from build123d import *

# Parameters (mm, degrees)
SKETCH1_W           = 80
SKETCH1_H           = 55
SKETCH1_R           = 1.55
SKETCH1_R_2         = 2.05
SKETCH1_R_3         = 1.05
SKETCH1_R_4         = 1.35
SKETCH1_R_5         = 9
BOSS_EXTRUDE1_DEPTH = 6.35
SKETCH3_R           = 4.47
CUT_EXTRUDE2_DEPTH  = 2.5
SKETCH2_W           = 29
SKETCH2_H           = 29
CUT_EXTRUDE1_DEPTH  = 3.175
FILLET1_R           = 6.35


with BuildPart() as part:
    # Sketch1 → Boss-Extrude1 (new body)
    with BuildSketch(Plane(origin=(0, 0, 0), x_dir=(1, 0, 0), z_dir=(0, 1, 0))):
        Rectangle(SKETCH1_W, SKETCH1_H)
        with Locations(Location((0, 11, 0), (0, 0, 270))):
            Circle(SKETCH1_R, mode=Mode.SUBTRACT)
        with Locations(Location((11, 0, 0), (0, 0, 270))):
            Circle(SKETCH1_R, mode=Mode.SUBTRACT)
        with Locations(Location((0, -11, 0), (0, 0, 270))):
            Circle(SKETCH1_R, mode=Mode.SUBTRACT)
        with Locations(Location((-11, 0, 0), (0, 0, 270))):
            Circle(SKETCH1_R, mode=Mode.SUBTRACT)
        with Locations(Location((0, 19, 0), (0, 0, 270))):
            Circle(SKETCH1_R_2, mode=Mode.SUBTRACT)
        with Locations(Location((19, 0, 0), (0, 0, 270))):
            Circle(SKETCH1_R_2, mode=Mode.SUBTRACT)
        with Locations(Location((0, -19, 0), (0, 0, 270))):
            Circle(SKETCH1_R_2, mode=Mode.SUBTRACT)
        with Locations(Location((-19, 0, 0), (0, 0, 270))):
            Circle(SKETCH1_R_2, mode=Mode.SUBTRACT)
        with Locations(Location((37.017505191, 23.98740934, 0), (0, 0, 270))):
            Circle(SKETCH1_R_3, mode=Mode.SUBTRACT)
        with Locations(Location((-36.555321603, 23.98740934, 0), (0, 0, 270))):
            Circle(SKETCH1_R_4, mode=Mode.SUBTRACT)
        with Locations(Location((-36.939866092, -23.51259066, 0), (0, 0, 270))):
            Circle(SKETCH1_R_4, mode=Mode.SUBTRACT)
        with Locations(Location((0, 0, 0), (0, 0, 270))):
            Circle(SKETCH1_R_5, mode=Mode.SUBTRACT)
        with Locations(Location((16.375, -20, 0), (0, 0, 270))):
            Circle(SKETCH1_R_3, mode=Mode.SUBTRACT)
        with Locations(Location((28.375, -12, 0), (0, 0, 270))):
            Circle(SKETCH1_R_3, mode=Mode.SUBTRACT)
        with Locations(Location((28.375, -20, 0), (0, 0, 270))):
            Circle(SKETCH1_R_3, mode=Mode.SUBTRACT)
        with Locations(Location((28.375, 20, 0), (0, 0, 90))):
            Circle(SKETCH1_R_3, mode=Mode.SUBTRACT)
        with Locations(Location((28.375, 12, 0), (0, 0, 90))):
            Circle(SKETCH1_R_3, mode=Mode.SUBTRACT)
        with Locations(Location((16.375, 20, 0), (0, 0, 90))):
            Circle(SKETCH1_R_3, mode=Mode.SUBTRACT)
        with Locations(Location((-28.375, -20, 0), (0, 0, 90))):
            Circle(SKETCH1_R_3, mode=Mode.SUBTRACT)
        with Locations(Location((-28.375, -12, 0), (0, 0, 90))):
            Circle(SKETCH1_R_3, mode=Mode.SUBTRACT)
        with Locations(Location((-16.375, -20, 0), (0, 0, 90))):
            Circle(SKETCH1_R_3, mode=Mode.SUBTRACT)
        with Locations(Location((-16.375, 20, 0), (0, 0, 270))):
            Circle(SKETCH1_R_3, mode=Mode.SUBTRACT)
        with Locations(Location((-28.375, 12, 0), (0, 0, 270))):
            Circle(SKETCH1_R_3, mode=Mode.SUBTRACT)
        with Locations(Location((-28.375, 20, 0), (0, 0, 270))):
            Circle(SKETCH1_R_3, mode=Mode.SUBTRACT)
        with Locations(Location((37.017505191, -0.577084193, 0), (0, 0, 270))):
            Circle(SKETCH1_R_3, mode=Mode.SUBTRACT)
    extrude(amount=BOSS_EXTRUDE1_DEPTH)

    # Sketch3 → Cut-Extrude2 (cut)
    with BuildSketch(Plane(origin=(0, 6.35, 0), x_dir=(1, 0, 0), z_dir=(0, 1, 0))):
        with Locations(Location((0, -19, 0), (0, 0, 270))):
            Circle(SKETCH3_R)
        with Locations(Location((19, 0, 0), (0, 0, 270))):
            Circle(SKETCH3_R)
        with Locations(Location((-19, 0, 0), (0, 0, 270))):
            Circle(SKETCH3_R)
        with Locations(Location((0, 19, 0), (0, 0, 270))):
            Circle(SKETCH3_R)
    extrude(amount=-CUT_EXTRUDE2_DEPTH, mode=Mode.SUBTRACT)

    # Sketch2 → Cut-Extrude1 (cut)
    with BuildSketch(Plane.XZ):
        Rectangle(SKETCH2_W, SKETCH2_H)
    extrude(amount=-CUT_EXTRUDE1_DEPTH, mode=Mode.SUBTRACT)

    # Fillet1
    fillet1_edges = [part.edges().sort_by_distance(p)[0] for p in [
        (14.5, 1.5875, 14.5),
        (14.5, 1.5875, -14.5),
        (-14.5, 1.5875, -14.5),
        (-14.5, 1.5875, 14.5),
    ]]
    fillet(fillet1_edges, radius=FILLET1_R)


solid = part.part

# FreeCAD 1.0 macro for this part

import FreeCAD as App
import Part
import Sketcher


def edges_at(feature, points):
    """Names of the edges that pass closest to the given points."""
    edges = feature.Shape.Edges
    near = lambda p: min(range(len(edges)), key=lambda i: edges[i].distToShape(Part.Vertex(*p))[0])
    return sorted({f"Edge{near(p) + 1}" for p in points})

doc = App.newDocument("Part")
body = doc.addObject("PartDesign::Body", "Body")

sketch1 = doc.addObject("Sketcher::SketchObject", "Sketch")
body.addObject(sketch1)
sketch1.AttachmentSupport = (doc.XZ_Plane, [""])
sketch1.MapMode = "FlatFace"
sketch1.addGeometry([
    Part.LineSegment(App.Vector(-40, -27.5, 0), App.Vector(-40, 27.5, 0)),
    Part.LineSegment(App.Vector(-40, 27.5, 0), App.Vector(40, 27.5, 0)),
    Part.LineSegment(App.Vector(40, 27.5, 0), App.Vector(40, -27.5, 0)),
    Part.LineSegment(App.Vector(40, -27.5, 0), App.Vector(-40, -27.5, 0)),
    Part.Circle(App.Vector(-36.9, 23.5, 0), App.Vector(0, 0, 1), 1.4),
    Part.Circle(App.Vector(-28.4, 20, 0), App.Vector(0, 0, 1), 1.1),
    Part.Circle(App.Vector(-16.4, 20, 0), App.Vector(0, 0, 1), 1.1),
    Part.Circle(App.Vector(-28.4, 12, 0), App.Vector(0, 0, 1), 1.1),
    Part.Circle(App.Vector(-19, 0, 0), App.Vector(0, 0, 1), 2),
    Part.Circle(App.Vector(-11, 0, 0), App.Vector(0, 0, 1), 1.6),
    Part.Circle(App.Vector(0, 19, 0), App.Vector(0, 0, 1), 2),
    Part.Circle(App.Vector(16.4, 20, 0), App.Vector(0, 0, 1), 1.1),
    Part.Circle(App.Vector(28.4, 20, 0), App.Vector(0, 0, 1), 1.1),
    Part.Circle(App.Vector(0, 11, 0), App.Vector(0, 0, 1), 1.6),
    Part.Circle(App.Vector(0, 0, 0), App.Vector(0, 0, 1), 9),
    Part.Circle(App.Vector(11, 0, 0), App.Vector(0, 0, 1), 1.6),
    Part.Circle(App.Vector(28.4, 12, 0), App.Vector(0, 0, 1), 1.1),
    Part.Circle(App.Vector(19, 0, 0), App.Vector(0, 0, 1), 2),
    Part.Circle(App.Vector(37, 0.6, 0), App.Vector(0, 0, 1), 1.1),
    Part.Circle(App.Vector(-28.4, -12, 0), App.Vector(0, 0, 1), 1.1),
    Part.Circle(App.Vector(-36.6, -24, 0), App.Vector(0, 0, 1), 1.4),
    Part.Circle(App.Vector(-28.4, -20, 0), App.Vector(0, 0, 1), 1.1),
    Part.Circle(App.Vector(-16.4, -20, 0), App.Vector(0, 0, 1), 1.1),
    Part.Circle(App.Vector(0, -11, 0), App.Vector(0, 0, 1), 1.6),
    Part.Circle(App.Vector(28.4, -12, 0), App.Vector(0, 0, 1), 1.1),
    Part.Circle(App.Vector(0, -19, 0), App.Vector(0, 0, 1), 2),
    Part.Circle(App.Vector(16.4, -20, 0), App.Vector(0, 0, 1), 1.1),
    Part.Circle(App.Vector(28.4, -20, 0), App.Vector(0, 0, 1), 1.1),
    Part.Circle(App.Vector(37, -24, 0), App.Vector(0, 0, 1), 1.1),
], False)
sketch1.addConstraint([
    Sketcher.Constraint("Coincident", 0, 2, 1, 1),
    Sketcher.Constraint("Coincident", 1, 2, 2, 1),
    Sketcher.Constraint("Coincident", 2, 2, 3, 1),
    Sketcher.Constraint("Coincident", 3, 2, 0, 1),
    Sketcher.Constraint("Vertical", 0),
    Sketcher.Constraint("Horizontal", 1),
    Sketcher.Constraint("Vertical", 2),
    Sketcher.Constraint("Horizontal", 3),
    Sketcher.Constraint("Coincident", 14, 3, -1, 1),
    Sketcher.Constraint("Equal", 5, 6),
    Sketcher.Constraint("Equal", 6, 7),
    Sketcher.Constraint("Equal", 8, 10),
    Sketcher.Constraint("Equal", 7, 11),
    Sketcher.Constraint("Equal", 11, 12),
    Sketcher.Constraint("Equal", 9, 13),
    Sketcher.Constraint("Equal", 13, 15),
    Sketcher.Constraint("Equal", 12, 16),
    Sketcher.Constraint("Equal", 10, 17),
    Sketcher.Constraint("Equal", 16, 18),
    Sketcher.Constraint("Equal", 18, 19),
    Sketcher.Constraint("Equal", 4, 20),
    Sketcher.Constraint("Equal", 19, 21),
    Sketcher.Constraint("Equal", 21, 22),
    Sketcher.Constraint("Equal", 15, 23),
    Sketcher.Constraint("Equal", 22, 24),
    Sketcher.Constraint("Equal", 17, 25),
    Sketcher.Constraint("Equal", 24, 26),
    Sketcher.Constraint("Equal", 26, 27),
    Sketcher.Constraint("Equal", 27, 28),
    Sketcher.Constraint("Symmetric", 9, 3, 15, 3, -1, 1),
    Sketcher.Constraint("Symmetric", 8, 3, 17, 3, -1, 1),
    Sketcher.Constraint("Symmetric", 16, 3, 19, 3, -1, 1),
    Sketcher.Constraint("Symmetric", 12, 3, 21, 3, -1, 1),
    Sketcher.Constraint("Symmetric", 11, 3, 22, 3, -1, 1),
    Sketcher.Constraint("Symmetric", 13, 3, 23, 3, -1, 1),
    Sketcher.Constraint("Symmetric", 7, 3, 24, 3, -1, 1),
    Sketcher.Constraint("Symmetric", 10, 3, 25, 3, -1, 1),
    Sketcher.Constraint("Symmetric", 6, 3, 26, 3, -1, 1),
    Sketcher.Constraint("Symmetric", 5, 3, 27, 3, -1, 1),
    Sketcher.Constraint("Symmetric", 0, 2, 2, 2, -1, 1),
    Sketcher.Constraint("Symmetric", 6, 3, 11, 3, -2),
    Sketcher.Constraint("Symmetric", 5, 3, 12, 3, -2),
    Sketcher.Constraint("Symmetric", 7, 3, 16, 3, -2),
    Sketcher.Constraint("PointOnObject", 8, 3, -1),
    Sketcher.Constraint("PointOnObject", 9, 3, -1),
    Sketcher.Constraint("PointOnObject", 10, 3, -2),
    Sketcher.Constraint("PointOnObject", 13, 3, -2),
    Sketcher.Constraint("Horizontal", 5, 3, 6, 3),
    Sketcher.Constraint("Horizontal", 20, 3, 28, 3),
    Sketcher.Constraint("Vertical", 5, 3, 7, 3),
    Sketcher.Constraint("Vertical", 18, 3, 28, 3),
    Sketcher.Constraint("Diameter", 14, 18.0),
    Sketcher.Constraint("Diameter", 4, 2.7),
    Sketcher.Constraint("Diameter", 5, 2.1),
    Sketcher.Constraint("Diameter", 8, 4.1),
    Sketcher.Constraint("Diameter", 9, 3.1),
    Sketcher.Constraint("DistanceX", 1, 1, 1, 2, 80.0),
    Sketcher.Constraint("DistanceY", 0, 1, 0, 2, 55.0),
    Sketcher.Constraint("DistanceY", -1, 1, 5, 3, 20.0),
    Sketcher.Constraint("DistanceY", -1, 1, 7, 3, 12.0),
    Sketcher.Constraint("DistanceX", 8, 3, -1, 1, 19.0),
    Sketcher.Constraint("DistanceX", 9, 3, -1, 1, 11.0),
    Sketcher.Constraint("DistanceY", -1, 1, 10, 3, 19.0),
    Sketcher.Constraint("DistanceY", -1, 1, 13, 3, 11.0),
    Sketcher.Constraint("DistanceX", 5, 3, 6, 3, 12.0),
    Sketcher.Constraint("DistanceX", 6, 3, 11, 3, 32.75),
    Sketcher.Constraint("DistanceY", -1, 1, 4, 3, 23.512591),
    Sketcher.Constraint("DistanceX", 20, 3, -1, 1, 36.555322),
    Sketcher.Constraint("DistanceY", 20, 3, -1, 1, 23.987409),
    Sketcher.Constraint("DistanceX", 4, 3, -1, 1, 36.939866),
    Sketcher.Constraint("DistanceX", -1, 1, 18, 3, 37.017505),
    Sketcher.Constraint("DistanceY", -1, 1, 18, 3, 0.577084),
])
pad1 = doc.addObject("PartDesign::Pad", "Pad")
body.addObject(pad1)
pad1.Profile = sketch1
pad1.Length = 6.35
pad1.Reversed = True

sketch2 = doc.addObject("Sketcher::SketchObject", "Sketch001")
body.addObject(sketch2)
sketch2.AttachmentSupport = (doc.XZ_Plane, [""])
sketch2.MapMode = "FlatFace"
sketch2.AttachmentOffset = App.Placement(App.Vector(0, 0, -6.35), App.Rotation())
sketch2.addGeometry([
    Part.Circle(App.Vector(0, 19, 0), App.Vector(0, 0, 1), 4.5),
    Part.Circle(App.Vector(19, 0, 0), App.Vector(0, 0, 1), 4.5),
    Part.Circle(App.Vector(-19, 0, 0), App.Vector(0, 0, 1), 4.5),
    Part.Circle(App.Vector(0, -19, 0), App.Vector(0, 0, 1), 4.5),
], False)
sketch2.addConstraint([
    Sketcher.Constraint("Equal", 0, 1),
    Sketcher.Constraint("Equal", 1, 2),
    Sketcher.Constraint("Equal", 2, 3),
    Sketcher.Constraint("Symmetric", 1, 3, 2, 3, -1, 1),
    Sketcher.Constraint("Symmetric", 0, 3, 3, 3, -1, 1),
    Sketcher.Constraint("PointOnObject", 0, 3, -2),
    Sketcher.Constraint("PointOnObject", 1, 3, -1),
    Sketcher.Constraint("Diameter", 0, 8.94),
    Sketcher.Constraint("DistanceY", -1, 1, 0, 3, 19.0),
    Sketcher.Constraint("DistanceX", -1, 1, 1, 3, 19.0),
])
pocket1 = doc.addObject("PartDesign::Pocket", "Pocket")
body.addObject(pocket1)
pocket1.Profile = sketch2
pocket1.Length = 2.5
pocket1.Reversed = True

sketch3 = doc.addObject("Sketcher::SketchObject", "Sketch002")
body.addObject(sketch3)
sketch3.AttachmentSupport = (doc.XZ_Plane, [""])
sketch3.MapMode = "FlatFace"
sketch3.addGeometry([
    Part.LineSegment(App.Vector(-14, 14, 0), App.Vector(-14, -14, 0)),
    Part.LineSegment(App.Vector(-14, -14, 0), App.Vector(14, -14, 0)),
    Part.LineSegment(App.Vector(14, -14, 0), App.Vector(14, 14, 0)),
    Part.LineSegment(App.Vector(14, 14, 0), App.Vector(-14, 14, 0)),
], False)
sketch3.addConstraint([
    Sketcher.Constraint("Coincident", 0, 2, 1, 1),
    Sketcher.Constraint("Coincident", 1, 2, 2, 1),
    Sketcher.Constraint("Coincident", 2, 2, 3, 1),
    Sketcher.Constraint("Coincident", 3, 2, 0, 1),
    Sketcher.Constraint("Vertical", 0),
    Sketcher.Constraint("Horizontal", 1),
    Sketcher.Constraint("Vertical", 2),
    Sketcher.Constraint("Horizontal", 3),
    Sketcher.Constraint("Symmetric", 0, 2, 2, 2, -1, 1),
    Sketcher.Constraint("Equal", 3, 0),
    Sketcher.Constraint("DistanceX", 1, 1, 1, 2, 29.0),
])
pocket2 = doc.addObject("PartDesign::Pocket", "Pocket001")
body.addObject(pocket2)
pocket2.Profile = sketch3
pocket2.Length = 3.175
doc.recompute()

fillet = doc.addObject("PartDesign::Fillet", "Fillet")
body.addObject(fillet)
fillet.Base = (pocket2, edges_at(pocket2, [
    (14.5, 1.587, 14.5),
    (14.5, 1.587, -14.5),
    (-14.5, 1.587, -14.5),
    (-14.5, 1.587, 14.5),
]))
fillet.Radius = 6.35

doc.recompute()
